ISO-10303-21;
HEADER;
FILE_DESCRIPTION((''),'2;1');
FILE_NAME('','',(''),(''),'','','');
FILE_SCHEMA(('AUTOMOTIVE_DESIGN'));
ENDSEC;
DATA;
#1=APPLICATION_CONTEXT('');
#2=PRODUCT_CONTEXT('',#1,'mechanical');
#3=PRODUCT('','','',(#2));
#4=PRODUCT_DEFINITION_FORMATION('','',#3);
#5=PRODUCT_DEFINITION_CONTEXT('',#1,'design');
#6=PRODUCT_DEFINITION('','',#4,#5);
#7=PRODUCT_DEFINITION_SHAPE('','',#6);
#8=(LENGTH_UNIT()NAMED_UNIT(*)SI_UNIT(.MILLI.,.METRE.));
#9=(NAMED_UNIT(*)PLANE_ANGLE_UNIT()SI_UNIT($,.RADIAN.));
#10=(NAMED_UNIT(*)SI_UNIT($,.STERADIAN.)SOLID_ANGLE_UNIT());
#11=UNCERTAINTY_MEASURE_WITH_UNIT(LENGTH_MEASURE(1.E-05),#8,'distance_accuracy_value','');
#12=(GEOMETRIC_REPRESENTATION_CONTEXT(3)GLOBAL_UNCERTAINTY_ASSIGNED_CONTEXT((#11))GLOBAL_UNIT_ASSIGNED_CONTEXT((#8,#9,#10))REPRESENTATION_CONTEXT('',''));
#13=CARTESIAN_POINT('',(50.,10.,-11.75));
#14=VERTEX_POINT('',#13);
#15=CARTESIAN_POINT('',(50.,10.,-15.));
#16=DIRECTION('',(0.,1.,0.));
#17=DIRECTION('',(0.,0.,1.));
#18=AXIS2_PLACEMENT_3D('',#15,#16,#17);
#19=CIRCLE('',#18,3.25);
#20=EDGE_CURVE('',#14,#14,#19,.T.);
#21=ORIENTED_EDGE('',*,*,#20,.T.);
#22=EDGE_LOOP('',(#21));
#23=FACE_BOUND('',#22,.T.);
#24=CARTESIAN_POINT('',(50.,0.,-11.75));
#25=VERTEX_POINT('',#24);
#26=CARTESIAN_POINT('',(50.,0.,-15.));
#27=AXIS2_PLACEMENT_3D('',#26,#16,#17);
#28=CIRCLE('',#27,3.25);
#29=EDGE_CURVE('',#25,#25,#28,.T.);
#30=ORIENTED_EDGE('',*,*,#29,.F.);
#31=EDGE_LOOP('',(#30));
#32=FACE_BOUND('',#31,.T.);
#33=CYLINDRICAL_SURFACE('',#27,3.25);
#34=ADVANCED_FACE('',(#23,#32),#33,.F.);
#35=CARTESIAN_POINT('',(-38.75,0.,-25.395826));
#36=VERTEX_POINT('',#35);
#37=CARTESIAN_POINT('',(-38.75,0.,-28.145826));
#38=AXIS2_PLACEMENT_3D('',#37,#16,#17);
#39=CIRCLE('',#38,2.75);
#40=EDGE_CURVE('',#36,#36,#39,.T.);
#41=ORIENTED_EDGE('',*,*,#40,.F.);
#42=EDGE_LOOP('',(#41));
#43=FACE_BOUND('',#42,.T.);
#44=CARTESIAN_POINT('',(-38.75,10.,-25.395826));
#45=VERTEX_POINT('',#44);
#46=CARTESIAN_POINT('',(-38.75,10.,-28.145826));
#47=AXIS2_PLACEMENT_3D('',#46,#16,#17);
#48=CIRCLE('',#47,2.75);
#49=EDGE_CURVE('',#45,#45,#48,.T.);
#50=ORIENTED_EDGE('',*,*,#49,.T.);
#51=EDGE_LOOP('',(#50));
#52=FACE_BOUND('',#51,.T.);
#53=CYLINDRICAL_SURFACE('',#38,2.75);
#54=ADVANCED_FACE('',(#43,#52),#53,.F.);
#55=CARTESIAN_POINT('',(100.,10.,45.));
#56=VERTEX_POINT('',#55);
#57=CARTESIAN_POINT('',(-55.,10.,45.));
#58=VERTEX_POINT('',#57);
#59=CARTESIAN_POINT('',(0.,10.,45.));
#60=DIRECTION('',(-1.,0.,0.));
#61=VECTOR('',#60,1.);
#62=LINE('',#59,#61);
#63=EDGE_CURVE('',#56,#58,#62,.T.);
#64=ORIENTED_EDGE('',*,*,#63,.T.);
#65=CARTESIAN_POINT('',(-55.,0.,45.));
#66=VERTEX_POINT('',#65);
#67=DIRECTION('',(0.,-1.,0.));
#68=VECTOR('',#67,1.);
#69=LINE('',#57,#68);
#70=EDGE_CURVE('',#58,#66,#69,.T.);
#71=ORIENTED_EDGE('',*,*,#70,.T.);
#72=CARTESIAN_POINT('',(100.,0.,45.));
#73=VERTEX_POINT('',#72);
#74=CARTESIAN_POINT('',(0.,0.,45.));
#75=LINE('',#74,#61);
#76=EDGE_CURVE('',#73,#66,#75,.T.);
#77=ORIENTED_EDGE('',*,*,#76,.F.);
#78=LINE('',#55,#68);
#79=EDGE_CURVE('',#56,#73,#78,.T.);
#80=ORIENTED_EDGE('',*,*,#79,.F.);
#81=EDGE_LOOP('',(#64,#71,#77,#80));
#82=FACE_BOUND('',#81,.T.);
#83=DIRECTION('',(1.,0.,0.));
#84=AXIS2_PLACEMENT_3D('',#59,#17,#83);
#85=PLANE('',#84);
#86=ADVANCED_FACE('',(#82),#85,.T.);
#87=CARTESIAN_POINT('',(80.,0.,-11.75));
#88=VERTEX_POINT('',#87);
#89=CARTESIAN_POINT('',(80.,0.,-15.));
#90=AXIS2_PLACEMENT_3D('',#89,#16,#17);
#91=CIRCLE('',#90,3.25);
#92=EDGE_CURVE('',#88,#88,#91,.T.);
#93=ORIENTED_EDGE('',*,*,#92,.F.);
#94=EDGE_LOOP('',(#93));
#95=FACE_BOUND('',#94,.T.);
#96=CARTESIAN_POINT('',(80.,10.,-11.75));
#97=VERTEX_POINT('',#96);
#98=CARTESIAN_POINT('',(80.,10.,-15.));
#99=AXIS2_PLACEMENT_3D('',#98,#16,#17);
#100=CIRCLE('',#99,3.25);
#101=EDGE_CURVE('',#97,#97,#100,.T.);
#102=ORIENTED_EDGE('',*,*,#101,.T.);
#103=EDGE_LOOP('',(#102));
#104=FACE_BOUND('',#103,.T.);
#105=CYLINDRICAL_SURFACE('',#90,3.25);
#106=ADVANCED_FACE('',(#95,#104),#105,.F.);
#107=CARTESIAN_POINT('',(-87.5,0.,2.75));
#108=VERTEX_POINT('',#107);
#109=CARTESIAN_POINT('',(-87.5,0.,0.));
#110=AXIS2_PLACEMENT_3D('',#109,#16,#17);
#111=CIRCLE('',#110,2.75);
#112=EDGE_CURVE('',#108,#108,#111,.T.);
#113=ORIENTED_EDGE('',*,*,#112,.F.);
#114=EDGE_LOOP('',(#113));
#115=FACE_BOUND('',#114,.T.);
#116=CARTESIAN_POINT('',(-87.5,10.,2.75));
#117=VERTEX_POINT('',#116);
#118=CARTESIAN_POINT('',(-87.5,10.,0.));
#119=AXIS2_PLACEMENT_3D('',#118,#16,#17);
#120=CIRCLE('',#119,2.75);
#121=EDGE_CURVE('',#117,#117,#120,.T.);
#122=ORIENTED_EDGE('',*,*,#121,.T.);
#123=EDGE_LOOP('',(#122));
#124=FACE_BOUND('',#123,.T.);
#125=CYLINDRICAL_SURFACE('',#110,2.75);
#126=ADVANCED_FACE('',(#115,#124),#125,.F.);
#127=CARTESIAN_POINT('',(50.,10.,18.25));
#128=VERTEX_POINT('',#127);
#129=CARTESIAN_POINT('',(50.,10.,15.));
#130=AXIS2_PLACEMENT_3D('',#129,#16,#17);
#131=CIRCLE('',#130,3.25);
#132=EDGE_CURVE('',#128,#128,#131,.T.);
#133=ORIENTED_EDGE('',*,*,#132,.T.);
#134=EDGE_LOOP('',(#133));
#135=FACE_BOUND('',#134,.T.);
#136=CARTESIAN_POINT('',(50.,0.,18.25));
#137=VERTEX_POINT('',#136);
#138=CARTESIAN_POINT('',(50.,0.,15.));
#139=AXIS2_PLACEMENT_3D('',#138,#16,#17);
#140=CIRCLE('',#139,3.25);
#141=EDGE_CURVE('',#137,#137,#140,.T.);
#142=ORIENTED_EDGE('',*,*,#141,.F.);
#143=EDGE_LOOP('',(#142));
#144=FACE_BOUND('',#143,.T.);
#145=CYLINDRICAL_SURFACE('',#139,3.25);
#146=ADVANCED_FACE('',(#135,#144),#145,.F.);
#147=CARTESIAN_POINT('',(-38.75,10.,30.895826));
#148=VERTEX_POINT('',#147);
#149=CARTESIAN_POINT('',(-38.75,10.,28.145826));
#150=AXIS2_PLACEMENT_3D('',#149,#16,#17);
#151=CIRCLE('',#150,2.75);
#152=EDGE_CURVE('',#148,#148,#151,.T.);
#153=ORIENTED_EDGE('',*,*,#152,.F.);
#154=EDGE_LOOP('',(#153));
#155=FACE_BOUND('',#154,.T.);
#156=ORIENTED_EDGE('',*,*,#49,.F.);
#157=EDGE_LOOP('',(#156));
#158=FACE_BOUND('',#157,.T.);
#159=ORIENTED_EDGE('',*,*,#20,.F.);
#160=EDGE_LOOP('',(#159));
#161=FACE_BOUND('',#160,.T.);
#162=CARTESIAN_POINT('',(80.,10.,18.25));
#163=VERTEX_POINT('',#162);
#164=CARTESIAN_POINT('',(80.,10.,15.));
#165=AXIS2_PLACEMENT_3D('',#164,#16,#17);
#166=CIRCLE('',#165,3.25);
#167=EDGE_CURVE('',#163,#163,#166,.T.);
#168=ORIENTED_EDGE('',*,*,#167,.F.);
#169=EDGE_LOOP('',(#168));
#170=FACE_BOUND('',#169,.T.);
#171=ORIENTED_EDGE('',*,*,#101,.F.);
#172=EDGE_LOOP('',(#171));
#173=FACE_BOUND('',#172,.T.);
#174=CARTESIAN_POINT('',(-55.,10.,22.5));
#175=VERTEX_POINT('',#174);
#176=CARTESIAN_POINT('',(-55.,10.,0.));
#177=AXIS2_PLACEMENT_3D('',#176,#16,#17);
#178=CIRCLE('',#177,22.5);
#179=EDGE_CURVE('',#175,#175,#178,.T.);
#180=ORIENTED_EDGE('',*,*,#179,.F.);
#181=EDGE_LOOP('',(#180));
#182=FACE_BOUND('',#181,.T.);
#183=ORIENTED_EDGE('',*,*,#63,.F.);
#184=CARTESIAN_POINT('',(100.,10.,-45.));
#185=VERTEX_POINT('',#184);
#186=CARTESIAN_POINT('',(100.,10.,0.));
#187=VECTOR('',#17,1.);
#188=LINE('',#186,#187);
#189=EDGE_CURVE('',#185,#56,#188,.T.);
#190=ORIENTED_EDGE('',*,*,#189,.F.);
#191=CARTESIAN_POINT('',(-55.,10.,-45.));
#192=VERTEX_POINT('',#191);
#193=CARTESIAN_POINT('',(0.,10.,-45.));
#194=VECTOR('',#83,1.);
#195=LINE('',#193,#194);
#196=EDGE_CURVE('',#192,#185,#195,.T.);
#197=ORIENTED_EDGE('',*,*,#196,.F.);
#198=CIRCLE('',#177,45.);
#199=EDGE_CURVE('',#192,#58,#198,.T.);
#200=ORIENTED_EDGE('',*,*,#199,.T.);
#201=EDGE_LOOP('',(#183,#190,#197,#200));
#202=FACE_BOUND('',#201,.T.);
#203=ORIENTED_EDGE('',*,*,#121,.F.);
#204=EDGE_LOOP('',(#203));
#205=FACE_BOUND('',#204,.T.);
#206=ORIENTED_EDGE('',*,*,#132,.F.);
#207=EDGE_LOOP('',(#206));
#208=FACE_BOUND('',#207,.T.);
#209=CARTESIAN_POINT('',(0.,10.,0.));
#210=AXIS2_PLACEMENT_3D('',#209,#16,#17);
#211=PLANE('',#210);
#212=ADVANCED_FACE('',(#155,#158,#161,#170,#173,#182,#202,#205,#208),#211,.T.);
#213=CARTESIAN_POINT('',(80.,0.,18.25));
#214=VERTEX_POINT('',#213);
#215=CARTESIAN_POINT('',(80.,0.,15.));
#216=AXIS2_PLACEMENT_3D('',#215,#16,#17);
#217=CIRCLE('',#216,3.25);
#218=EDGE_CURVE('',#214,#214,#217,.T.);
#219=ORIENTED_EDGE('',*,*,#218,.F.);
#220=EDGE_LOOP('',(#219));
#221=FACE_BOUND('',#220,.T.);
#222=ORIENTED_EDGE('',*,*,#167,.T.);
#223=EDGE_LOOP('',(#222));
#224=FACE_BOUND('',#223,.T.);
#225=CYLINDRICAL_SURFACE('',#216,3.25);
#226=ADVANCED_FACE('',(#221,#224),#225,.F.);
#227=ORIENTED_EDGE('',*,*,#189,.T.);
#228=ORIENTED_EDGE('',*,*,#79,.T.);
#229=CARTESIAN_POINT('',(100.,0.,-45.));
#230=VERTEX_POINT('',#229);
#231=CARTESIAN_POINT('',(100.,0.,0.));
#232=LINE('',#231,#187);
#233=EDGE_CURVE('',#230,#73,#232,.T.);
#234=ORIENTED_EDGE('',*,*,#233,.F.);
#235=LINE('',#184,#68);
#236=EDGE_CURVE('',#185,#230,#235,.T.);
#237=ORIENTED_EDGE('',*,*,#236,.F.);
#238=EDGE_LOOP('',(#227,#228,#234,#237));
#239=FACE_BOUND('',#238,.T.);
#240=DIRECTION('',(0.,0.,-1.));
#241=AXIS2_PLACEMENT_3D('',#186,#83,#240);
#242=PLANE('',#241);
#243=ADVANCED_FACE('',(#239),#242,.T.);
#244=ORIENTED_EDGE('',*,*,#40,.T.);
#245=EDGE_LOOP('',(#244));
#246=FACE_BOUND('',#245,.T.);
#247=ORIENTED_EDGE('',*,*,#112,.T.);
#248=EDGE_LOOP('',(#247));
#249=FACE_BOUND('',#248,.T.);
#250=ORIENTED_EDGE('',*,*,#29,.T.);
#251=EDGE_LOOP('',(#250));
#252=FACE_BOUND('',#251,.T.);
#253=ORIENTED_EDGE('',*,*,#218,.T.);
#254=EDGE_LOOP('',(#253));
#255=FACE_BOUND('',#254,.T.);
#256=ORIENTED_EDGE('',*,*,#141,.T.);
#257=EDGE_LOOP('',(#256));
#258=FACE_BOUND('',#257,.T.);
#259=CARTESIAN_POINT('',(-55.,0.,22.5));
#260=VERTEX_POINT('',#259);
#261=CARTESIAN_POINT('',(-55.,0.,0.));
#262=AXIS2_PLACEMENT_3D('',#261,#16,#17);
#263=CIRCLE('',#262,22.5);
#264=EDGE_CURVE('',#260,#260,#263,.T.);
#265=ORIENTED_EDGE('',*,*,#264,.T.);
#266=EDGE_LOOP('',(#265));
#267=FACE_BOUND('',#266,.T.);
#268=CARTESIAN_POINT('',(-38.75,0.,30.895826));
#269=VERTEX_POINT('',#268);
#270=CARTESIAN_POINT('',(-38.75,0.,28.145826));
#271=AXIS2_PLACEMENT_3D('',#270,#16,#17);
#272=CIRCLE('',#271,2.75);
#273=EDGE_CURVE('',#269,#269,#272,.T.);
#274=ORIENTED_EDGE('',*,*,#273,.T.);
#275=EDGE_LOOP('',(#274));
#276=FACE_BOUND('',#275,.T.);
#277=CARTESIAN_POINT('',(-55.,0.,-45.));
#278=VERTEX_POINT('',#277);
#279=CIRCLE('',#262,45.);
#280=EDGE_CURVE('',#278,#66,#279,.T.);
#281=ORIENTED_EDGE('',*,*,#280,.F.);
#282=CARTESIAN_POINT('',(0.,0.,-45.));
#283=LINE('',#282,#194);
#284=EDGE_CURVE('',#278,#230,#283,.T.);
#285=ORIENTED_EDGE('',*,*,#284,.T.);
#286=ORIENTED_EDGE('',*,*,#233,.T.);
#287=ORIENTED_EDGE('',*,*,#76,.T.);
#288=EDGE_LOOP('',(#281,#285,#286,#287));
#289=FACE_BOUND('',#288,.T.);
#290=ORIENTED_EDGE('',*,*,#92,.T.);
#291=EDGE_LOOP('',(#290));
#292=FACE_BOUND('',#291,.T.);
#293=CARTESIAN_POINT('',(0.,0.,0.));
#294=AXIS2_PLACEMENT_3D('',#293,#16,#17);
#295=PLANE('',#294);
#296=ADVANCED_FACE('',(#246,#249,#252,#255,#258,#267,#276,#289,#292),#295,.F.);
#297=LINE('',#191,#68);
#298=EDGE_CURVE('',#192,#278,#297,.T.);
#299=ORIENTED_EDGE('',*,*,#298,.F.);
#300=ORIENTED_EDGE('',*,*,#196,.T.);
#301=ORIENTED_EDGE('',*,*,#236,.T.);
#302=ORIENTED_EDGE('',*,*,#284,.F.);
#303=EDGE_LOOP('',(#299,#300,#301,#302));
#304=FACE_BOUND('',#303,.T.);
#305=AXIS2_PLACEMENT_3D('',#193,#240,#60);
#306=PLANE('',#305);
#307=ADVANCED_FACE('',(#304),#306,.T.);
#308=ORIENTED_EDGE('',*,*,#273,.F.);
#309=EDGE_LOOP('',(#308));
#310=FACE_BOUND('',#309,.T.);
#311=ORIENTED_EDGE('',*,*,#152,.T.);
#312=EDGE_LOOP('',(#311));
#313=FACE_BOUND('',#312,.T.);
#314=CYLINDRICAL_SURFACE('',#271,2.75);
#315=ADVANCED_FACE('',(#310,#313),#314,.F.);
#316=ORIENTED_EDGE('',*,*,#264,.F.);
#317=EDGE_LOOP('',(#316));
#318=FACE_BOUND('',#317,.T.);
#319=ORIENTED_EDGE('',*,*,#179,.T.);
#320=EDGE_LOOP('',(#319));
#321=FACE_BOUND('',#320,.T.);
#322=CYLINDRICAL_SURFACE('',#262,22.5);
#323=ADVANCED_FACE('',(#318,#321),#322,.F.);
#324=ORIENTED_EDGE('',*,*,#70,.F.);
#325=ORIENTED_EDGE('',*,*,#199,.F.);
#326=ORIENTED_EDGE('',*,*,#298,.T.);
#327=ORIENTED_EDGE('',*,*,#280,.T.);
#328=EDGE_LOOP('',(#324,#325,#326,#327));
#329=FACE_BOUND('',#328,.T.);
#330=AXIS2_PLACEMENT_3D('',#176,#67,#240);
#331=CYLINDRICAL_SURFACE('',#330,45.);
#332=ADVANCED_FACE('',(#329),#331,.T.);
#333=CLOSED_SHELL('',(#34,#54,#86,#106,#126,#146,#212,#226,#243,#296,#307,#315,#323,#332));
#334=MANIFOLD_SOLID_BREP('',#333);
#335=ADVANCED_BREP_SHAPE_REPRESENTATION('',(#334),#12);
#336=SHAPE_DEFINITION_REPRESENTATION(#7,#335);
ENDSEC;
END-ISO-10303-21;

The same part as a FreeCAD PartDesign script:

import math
import FreeCAD as App
import Part
import Sketcher
from FreeCAD import Vector

doc = App.newDocument("Part")
body = doc.addObject("PartDesign::Body", "Body")

sketch1 = body.newObject("Sketcher::SketchObject", "Sketch")
sketch1.AttachmentSupport = (doc.getObject("XZ_Plane"), [""])
sketch1.MapMode = "FlatFace"
sketch1.addGeometry([
    Part.LineSegment(Vector(100, -45, 0), Vector(-55, -45, 0)),
    Part.ArcOfCircle(Part.Circle(Vector(-55, 0, 0), Vector(0, 0, 1), 45), math.radians(90), math.radians(270)),
    Part.LineSegment(Vector(-55, 45, 0), Vector(100, 45, 0)),
    Part.LineSegment(Vector(100, 45, 0), Vector(100, -45, 0)),
], False)
sketch1.addConstraint([
    Sketcher.Constraint("Tangent", 0, 2, 1, 2),
    Sketcher.Constraint("Tangent", 1, 1, 2, 1),
    Sketcher.Constraint("Coincident", 2, 2, 3, 1),
    Sketcher.Constraint("Coincident", 3, 2, 0, 1),
    Sketcher.Constraint("Horizontal", 0),
    Sketcher.Constraint("Horizontal", 2),
    Sketcher.Constraint("Vertical", 3),
    Sketcher.Constraint("PointOnObject", 1, 3, -1),
    Sketcher.Constraint("Radius", 1, 45.0),
    Sketcher.Constraint("DistanceX", 0, 2, 0, 1, 155.0),
    Sketcher.Constraint("DistanceX", 1, 3, -1, 1, 55.0),
])
pad1 = body.newObject("PartDesign::Pad", "Pad")
pad1.Profile = sketch1
pad1.Length = 10
pad1.Reversed = True

sketch2 = body.newObject("Sketcher::SketchObject", "Sketch001")
sketch2.AttachmentSupport = (doc.getObject("XZ_Plane"), [""])
sketch2.MapMode = "FlatFace"
sketch2.AttachmentOffset = App.Placement(Vector(0, 0, -10), App.Rotation())
sketch2.addGeometry([
    Part.Circle(Vector(-87.5, 0, 0), Vector(0, 0, 1), 2.75),
    Part.Circle(Vector(-38.75, -28.145826, 0), Vector(0, 0, 1), 2.75),
    Part.Circle(Vector(-38.75, 28.145826, 0), Vector(0, 0, 1), 2.75),
    Part.Circle(Vector(-55, 0, 0), Vector(0, 0, 1), 22.5),
], False)
sketch2.addConstraint([
    Sketcher.Constraint("Equal", 0, 1),
    Sketcher.Constraint("Equal", 1, 2),
    Sketcher.Constraint("Symmetric", 1, 3, 2, 3, -1),
    Sketcher.Constraint("PointOnObject", 0, 3, -1),
    Sketcher.Constraint("PointOnObject", 3, 3, -1),
    Sketcher.Constraint("Diameter", 3, 45.0),
    Sketcher.Constraint("Diameter", 0, 5.5),
    Sketcher.Constraint("DistanceX", 3, 3, -1, 1, 55.0),
    Sketcher.Constraint("DistanceX", 0, 3, -1, 1, 87.5),
    Sketcher.Constraint("DistanceX", 1, 3, -1, 1, 38.75),
    Sketcher.Constraint("DistanceY", 1, 3, 2, 3, 56.291651),
])
pocket1 = body.newObject("PartDesign::Pocket", "Pocket")
pocket1.Profile = sketch2
pocket1.Type = "ThroughAll"
pocket1.Reversed = True

sketch3 = body.newObject("Sketcher::SketchObject", "Sketch002")
sketch3.AttachmentSupport = (doc.getObject("XZ_Plane"), [""])
sketch3.MapMode = "FlatFace"
sketch3.AttachmentOffset = App.Placement(Vector(0, 0, -10), App.Rotation())
sketch3.addGeometry([
    Part.Circle(Vector(80, -15, 0), Vector(0, 0, 1), 3.25),
    Part.Circle(Vector(50, -15, 0), Vector(0, 0, 1), 3.25),
    Part.Circle(Vector(50, 15, 0), Vector(0, 0, 1), 3.25),
    Part.Circle(Vector(80, 15, 0), Vector(0, 0, 1), 3.25),
], False)
sketch3.addConstraint([
    Sketcher.Constraint("Equal", 0, 1),
    Sketcher.Constraint("Equal", 1, 2),
    Sketcher.Constraint("Equal", 2, 3),
    Sketcher.Constraint("Symmetric", 1, 3, 2, 3, -1),
    Sketcher.Constraint("Symmetric", 0, 3, 3, 3, -1),
    Sketcher.Constraint("Horizontal", 0, 3, 1, 3),
    Sketcher.Constraint("Diameter", 0, 6.5),
    Sketcher.Constraint("DistanceX", -1, 1, 0, 3, 80.0),
    Sketcher.Constraint("DistanceY", 0, 3, -1, 1, 15.0),
    Sketcher.Constraint("DistanceX", -1, 1, 1, 3, 50.0),
])
pocket2 = body.newObject("PartDesign::Pocket", "Pocket001")
pocket2.Profile = sketch3
pocket2.Type = "ThroughAll"
pocket2.Reversed = True

doc.recompute()
